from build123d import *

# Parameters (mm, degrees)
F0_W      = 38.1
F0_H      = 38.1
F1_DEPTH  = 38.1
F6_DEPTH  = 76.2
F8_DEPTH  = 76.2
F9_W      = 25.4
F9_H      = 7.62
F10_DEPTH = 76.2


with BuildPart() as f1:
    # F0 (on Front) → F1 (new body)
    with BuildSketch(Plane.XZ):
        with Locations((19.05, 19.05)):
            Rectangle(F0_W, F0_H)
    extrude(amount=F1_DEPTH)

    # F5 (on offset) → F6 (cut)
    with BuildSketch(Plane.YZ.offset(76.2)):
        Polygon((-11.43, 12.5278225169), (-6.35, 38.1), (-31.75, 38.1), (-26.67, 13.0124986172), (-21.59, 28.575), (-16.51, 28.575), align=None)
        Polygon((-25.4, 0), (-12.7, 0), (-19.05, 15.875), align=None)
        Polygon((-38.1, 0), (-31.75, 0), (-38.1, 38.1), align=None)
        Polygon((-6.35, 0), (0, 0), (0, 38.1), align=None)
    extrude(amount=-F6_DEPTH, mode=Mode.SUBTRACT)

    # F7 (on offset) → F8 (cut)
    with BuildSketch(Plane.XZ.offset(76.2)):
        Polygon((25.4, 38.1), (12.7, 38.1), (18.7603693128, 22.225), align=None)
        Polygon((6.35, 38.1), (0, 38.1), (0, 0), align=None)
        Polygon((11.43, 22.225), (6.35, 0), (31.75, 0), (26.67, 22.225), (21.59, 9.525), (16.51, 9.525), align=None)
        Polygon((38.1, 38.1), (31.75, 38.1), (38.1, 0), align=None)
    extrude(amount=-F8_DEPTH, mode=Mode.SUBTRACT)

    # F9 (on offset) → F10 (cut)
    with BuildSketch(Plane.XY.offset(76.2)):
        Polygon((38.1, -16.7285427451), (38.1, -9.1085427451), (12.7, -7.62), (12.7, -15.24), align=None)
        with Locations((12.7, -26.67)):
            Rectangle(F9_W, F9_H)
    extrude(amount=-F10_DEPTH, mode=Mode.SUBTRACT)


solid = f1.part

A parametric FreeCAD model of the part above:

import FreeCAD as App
import Part
import Sketcher
from FreeCAD import Vector
Q = App.Units.Quantity


def add_polygon(sketch, points):
    """Adds a closed chain of lines whose ends are joined by coincident constraints."""
    first, n = sketch.GeometryCount, len(points)
    for a, b in zip(points, points[1:] + points[:1]):
        sketch.addGeometry(Part.LineSegment(App.Vector(*a, 0), App.Vector(*b, 0)), False)
    for i in range(n):
        sketch.addConstraint(Sketcher.Constraint("Coincident", first + i, 2, first + (i + 1) % n, 1))

doc = App.newDocument("Part")
params = doc.addObject("Spreadsheet::Sheet", "Params")
for row, (alias, value) in enumerate([
    ("sketch1_width", "1.5 in"),
    ("pad1_length", "1.5 in"),
    ("sketch2_width", "1 in"),
    ("sketch2_width2", "0.2 in"),
    ("sketch2_width3", "0.5 in"),
    ("sketch2_height", "1.5 in"),
    ("pocket1_length", "3 in"),
    ("sketch3_width", "1 in"),
    ("sketch3_width2", "0.5 in"),
    ("sketch3_width3", "0.2 in"),
    ("sketch3_height", "1.5 in"),
    ("pocket2_length", "3 in"),
    ("sketch4_width", "1 in"),
    ("sketch4_height", "0.3 in"),
    ("pocket3_length", "3 in"),
], start=1):
    params.set(f"A{row}", alias)
    params.set(f"B{row}", "=" + value)
    params.setAlias(f"B{row}", alias)

body = doc.addObject("PartDesign::Body", "Body")

sketch1 = body.newObject("Sketcher::SketchObject", "Sketch")
sketch1.AttachmentSupport = (doc.getObject("XZ_Plane"), [""])
sketch1.MapMode = "FlatFace"
add_polygon(sketch1, [(0, 38), (0, 0), (38, 0), (38, 38)])
sketch1.addConstraint([
    Sketcher.Constraint("Vertical", 0),
    Sketcher.Constraint("Horizontal", 1),
    Sketcher.Constraint("Vertical", 2),
    Sketcher.Constraint("Horizontal", 3),
    Sketcher.Constraint("Coincident", 0, 2, -1, 1),
    Sketcher.Constraint("Equal", 3, 0),
    Sketcher.Constraint("DistanceX", 1, 1, 1, 2, Q("1.5 in")),
])
sketch1.setExpression("Constraints[10]", "Params.sketch1_width")
pad1 = body.newObject("PartDesign::Pad", "Pad")
pad1.Profile = sketch1
pad1.setExpression("Length", "Params.pad1_length")

sketch2 = body.newObject("Sketcher::SketchObject", "Sketch001")
sketch2.AttachmentSupport = (doc.getObject("YZ_Plane"), [""])
sketch2.MapMode = "FlatFace"
sketch2.AttachmentOffset = App.Placement(Vector(0, 0, 3 * 25.4), App.Rotation())
add_polygon(sketch2, [(-11, 13), (-6, 38), (-32, 38), (-27, 13), (-22, 29), (-17, 29)])
add_polygon(sketch2, [(-25, 0), (-13, 0), (-19, 16)])
add_polygon(sketch2, [(-38, 0), (-32, 0), (-38, 38)])
add_polygon(sketch2, [(-6, 0), (0, 0), (0, 38)])
sketch2.addConstraint([
    Sketcher.Constraint("Horizontal", 1),
    Sketcher.Constraint("Horizontal", 4),
    Sketcher.Constraint("Horizontal", 6),
    Sketcher.Constraint("Horizontal", 9),
    Sketcher.Constraint("Vertical", 11),
    Sketcher.Constraint("Horizontal", 12),
    Sketcher.Constraint("Vertical", 13),
    Sketcher.Constraint("Coincident", 12, 2, -1, 1),
    Sketcher.Constraint("PointOnObject", 6, 2, -1),
    Sketcher.Constraint("PointOnObject", 9, 2, -1),
    Sketcher.Constraint("Horizontal", 1, 2, 10, 2),
    Sketcher.Constraint("Horizontal", 10, 2, 13, 2),
    Sketcher.Constraint("Vertical", 1, 2, 9, 2),
    Sketcher.Constraint("Vertical", 0, 2, 14, 2),
    Sketcher.Constraint("Equal", 9, 12),
    Sketcher.Constraint("Equal", 7, 8),
    Sketcher.Constraint("DistanceX", 1, 2, 1, 1, Q("1 in")),
    Sketcher.Constraint("DistanceX", 4, 1, 4, 2, Q("0.2 in")),
    Sketcher.Constraint("DistanceX", 6, 1, 6, 2, Q("0.5 in")),
    Sketcher.Constraint("DistanceY", 11, 2, 11, 1, Q("1.5 in")),
    Sketcher.Constraint("DistanceX", 8, 2, -1, 1, Q("1 in")),
    Sketcher.Constraint("DistanceX", 11, 2, 6, 2, Q("1 in")),
    Sketcher.Constraint("DistanceX", 1, 2, 2, 2, Q("0.2 in")),
    Sketcher.Constraint("DistanceX", 1, 2, 3, 2, Q("0.4 in")),
    Sketcher.Constraint("DistanceX", 2, 2, 5, 2, Q("0.6 in")),
    Sketcher.Constraint("DistanceY", 7, 2, 3, 2, Q("0.5 in")),
    Sketcher.Constraint("DistanceY", -1, 1, 3, 2, Q("1.125 in")),
    Sketcher.Constraint("DistanceY", -1, 1, 2, 2, 13.012499),
    Sketcher.Constraint("Distance", 5, 16.832062),
])
sketch2.setExpression("Constraints[31]", "Params.sketch2_width")
sketch2.setExpression("Constraints[32]", "Params.sketch2_width2")
sketch2.setExpression("Constraints[33]", "Params.sketch2_width3")
sketch2.setExpression("Constraints[34]", "Params.sketch2_height")
pocket1 = body.newObject("PartDesign::Pocket", "Pocket")
pocket1.Profile = sketch2
pocket1.setExpression("Length", "Params.pocket1_length")

sketch3 = body.newObject("Sketcher::SketchObject", "Sketch002")
sketch3.AttachmentSupport = (doc.getObject("XZ_Plane"), [""])
sketch3.MapMode = "FlatFace"
sketch3.AttachmentOffset = App.Placement(Vector(0, 0, 3 * 25.4), App.Rotation())
add_polygon(sketch3, [(25, 38), (13, 38), (19, 22)])
add_polygon(sketch3, [(6, 38), (0, 38), (0, 0)])
add_polygon(sketch3, [(11, 22), (6, 0), (32, 0), (27, 22), (22, 10), (17, 10)])
add_polygon(sketch3, [(38, 38), (32, 38), (38, 0)])
sketch3.addConstraint([
    Sketcher.Constraint("Horizontal", 0),
    Sketcher.Constraint("Horizontal", 3),
    Sketcher.Constraint("Vertical", 4),
    Sketcher.Constraint("Horizontal", 7),
    Sketcher.Constraint("Horizontal", 10),
    Sketcher.Constraint("Horizontal", 12),
    Sketcher.Constraint("Vertical", 14),
    Sketcher.Constraint("Coincident", 4, 2, -1, 1),
    Sketcher.Constraint("PointOnObject", 6, 2, -1),
    Sketcher.Constraint("PointOnObject", 13, 2, -1),
    Sketcher.Constraint("Horizontal", 2, 2, 3, 2),
    Sketcher.Constraint("Horizontal", 1, 2, 8, 2),
    Sketcher.Constraint("Horizontal", 8, 2, 11, 2),
    Sketcher.Constraint("Horizontal", 5, 2, 12, 2),
    Sketcher.Constraint("Vertical", 5, 2, 6, 2),
    Sketcher.Constraint("Vertical", 7, 2, 12, 2),
    Sketcher.Constraint("Equal", 3, 12),
    Sketcher.Constraint("Equal", 6, 8),
    Sketcher.Constraint("Equal", 9, 11),
    Sketcher.Constraint("DistanceX", 7, 1, 7, 2, Q("1 in")),
    Sketcher.Constraint("DistanceX", 0, 2, 0, 1, Q("0.5 in")),
    Sketcher.Constraint("DistanceX", 10, 2, 10, 1, Q("0.2 in")),
    Sketcher.Constraint("DistanceY", 4, 2, 4, 1, Q("1.5 in")),
    Sketcher.Constraint("DistanceX", -1, 1, 2, 2, Q("1 in")),
    Sketcher.Constraint("DistanceX", 0, 2, 14, 2, Q("1 in")),
    Sketcher.Constraint("DistanceX", 8, 2, 7, 2, Q("0.2 in")),
    Sketcher.Constraint("DistanceY", 9, 2, 1, 2, Q("0.5 in")),
    Sketcher.Constraint("DistanceY", -1, 1, 1, 2, Q("0.875 in")),
    Sketcher.Constraint("Distance", 1, 16.99246),
])
sketch3.setExpression("Constraints[34]", "Params.sketch3_width")
sketch3.setExpression("Constraints[35]", "Params.sketch3_width2")
sketch3.setExpression("Constraints[36]", "Params.sketch3_width3")
sketch3.setExpression("Constraints[37]", "Params.sketch3_height")
pocket2 = body.newObject("PartDesign::Pocket", "Pocket001")
pocket2.Profile = sketch3
pocket2.setExpression("Length", "Params.pocket2_length")

sketch4 = body.newObject("Sketcher::SketchObject", "Sketch003")
sketch4.AttachmentSupport = (doc.getObject("XY_Plane"), [""])
sketch4.MapMode = "FlatFace"
sketch4.AttachmentOffset = App.Placement(Vector(0, 0, 3 * 25.4), App.Rotation())
add_polygon(sketch4, [(38, -17), (38, -9), (13, -8), (13, -15)])
add_polygon(sketch4, [(0, -23), (0, -30), (25, -30), (25, -23)])
sketch4.addConstraint([
    Sketcher.Constraint("Vertical", 0),
    Sketcher.Constraint("Vertical", 2),
    Sketcher.Constraint("Vertical", 4),
    Sketcher.Constraint("Horizontal", 5),
    Sketcher.Constraint("Vertical", 6),
    Sketcher.Constraint("Horizontal", 7),
    Sketcher.Constraint("PointOnObject", 4, 2, -2),
    Sketcher.Constraint("Parallel", 1, 3),
    Sketcher.Constraint("Equal", 2, 4),
    Sketcher.Constraint("DistanceX", 5, 1, 5, 2, Q("1 in")),
    Sketcher.Constraint("DistanceY", 0, 1, 0, 2, Q("0.3 in")),
    Sketcher.Constraint("DistanceX", 1, 2, 0, 2, Q("1 in")),
    Sketcher.Constraint("DistanceX", -1, 1, 0, 2, Q("1.5 in")),
    Sketcher.Constraint("DistanceY", 1, 2, -1, 1, Q("0.3 in")),
    Sketcher.Constraint("DistanceY", 4, 2, -1, 1, Q("1.2 in")),
    Sketcher.Constraint("Distance", 1, 25.44358),
])
sketch4.setExpression("Constraints[17]", "Params.sketch4_width")
sketch4.setExpression("Constraints[18]", "Params.sketch4_height")
pocket3 = body.newObject("PartDesign::Pocket", "Pocket002")
pocket3.Profile = sketch4
pocket3.setExpression("Length", "Params.pocket3_length")

doc.recompute()
